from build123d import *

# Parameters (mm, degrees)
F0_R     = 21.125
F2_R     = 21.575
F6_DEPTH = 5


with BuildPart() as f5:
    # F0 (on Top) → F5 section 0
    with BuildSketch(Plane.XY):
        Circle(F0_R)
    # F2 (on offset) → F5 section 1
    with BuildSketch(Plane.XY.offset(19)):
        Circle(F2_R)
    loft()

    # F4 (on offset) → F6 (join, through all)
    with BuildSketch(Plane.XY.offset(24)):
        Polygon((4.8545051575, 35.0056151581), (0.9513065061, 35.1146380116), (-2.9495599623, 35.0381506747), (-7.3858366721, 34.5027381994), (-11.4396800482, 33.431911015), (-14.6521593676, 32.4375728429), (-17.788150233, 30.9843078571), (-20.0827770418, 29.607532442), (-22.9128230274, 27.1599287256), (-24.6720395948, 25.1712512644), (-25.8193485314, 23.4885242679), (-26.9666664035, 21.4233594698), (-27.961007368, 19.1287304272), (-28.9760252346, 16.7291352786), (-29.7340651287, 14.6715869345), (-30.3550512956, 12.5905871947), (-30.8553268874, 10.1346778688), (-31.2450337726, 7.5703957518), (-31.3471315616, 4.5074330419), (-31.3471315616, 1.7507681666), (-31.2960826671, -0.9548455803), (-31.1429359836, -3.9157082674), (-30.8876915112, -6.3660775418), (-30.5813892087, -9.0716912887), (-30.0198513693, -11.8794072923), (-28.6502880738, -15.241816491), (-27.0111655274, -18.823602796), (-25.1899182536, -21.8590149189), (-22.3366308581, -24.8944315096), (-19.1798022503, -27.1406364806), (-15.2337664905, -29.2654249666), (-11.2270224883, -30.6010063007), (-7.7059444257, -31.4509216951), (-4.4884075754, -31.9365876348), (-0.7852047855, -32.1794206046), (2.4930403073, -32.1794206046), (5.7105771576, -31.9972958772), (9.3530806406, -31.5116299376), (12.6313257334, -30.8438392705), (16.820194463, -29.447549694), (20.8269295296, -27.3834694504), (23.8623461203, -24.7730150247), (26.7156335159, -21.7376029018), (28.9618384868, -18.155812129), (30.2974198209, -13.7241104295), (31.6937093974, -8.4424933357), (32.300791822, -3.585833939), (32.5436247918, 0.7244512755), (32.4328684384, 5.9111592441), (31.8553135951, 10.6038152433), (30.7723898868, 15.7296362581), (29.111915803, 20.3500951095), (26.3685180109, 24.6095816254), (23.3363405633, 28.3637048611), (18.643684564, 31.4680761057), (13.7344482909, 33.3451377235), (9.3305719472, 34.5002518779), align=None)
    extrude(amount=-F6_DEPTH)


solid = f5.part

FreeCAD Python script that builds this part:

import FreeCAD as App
import Part
import Sketcher
from FreeCAD import Vector
Q = App.Units.Quantity

doc = App.newDocument("Part")
params = doc.addObject("Spreadsheet::Sheet", "Params")
for row, (alias, value) in enumerate([
    ("sketch1_diameter", "42.25 mm"),
    ("sketch2_diameter", "43.15 mm"),
    ("pad1_length", "5 mm"),
], start=1):
    params.set(f"A{row}", alias)
    params.set(f"B{row}", "=" + value)
    params.setAlias(f"B{row}", alias)

body = doc.addObject("PartDesign::Body", "Body")

# Sketch on XY plane
sketch1 = body.newObject("Sketcher::SketchObject", "Sketch")
sketch1.AttachmentSupport = (doc.getObject("XY_Plane"), [""])
sketch1.MapMode = "FlatFace"
sketch1.addGeometry(Part.Circle(Vector(0, 0, 0), Vector(0, 0, 1), 21), False)
sketch1.addConstraint(Sketcher.Constraint("Coincident", 0, 3, -1, 1))
sketch1.addConstraint(Sketcher.Constraint("Diameter", 0, Q("42.25 mm")))
sketch1.setExpression("Constraints[1]", "Params.sketch1_diameter")

# Sketch on XY plane
sketch2 = body.newObject("Sketcher::SketchObject", "Sketch001")
sketch2.AttachmentSupport = (doc.getObject("XY_Plane"), [""])
sketch2.MapMode = "FlatFace"
sketch2.AttachmentOffset = App.Placement(Vector(0, 0, 19), App.Rotation())
sketch2.addGeometry(Part.Circle(Vector(0, 0, 0), Vector(0, 0, 1), 22), False)
sketch2.addConstraint(Sketcher.Constraint("Coincident", 0, 3, -1, 1))
sketch2.addConstraint(Sketcher.Constraint("Diameter", 0, Q("43.15 mm")))
sketch2.setExpression("Constraints[1]", "Params.sketch2_diameter")

additiveloft = body.newObject("PartDesign::AdditiveLoft", "AdditiveLoft")
additiveloft.Profile = sketch1
additiveloft.Sections = [sketch2]

# Sketch on XY plane
sketch3 = body.newObject("Sketcher::SketchObject", "Sketch002")
sketch3.AttachmentSupport = (doc.getObject("XY_Plane"), [""])
sketch3.MapMode = "FlatFace"
sketch3.AttachmentOffset = App.Placement(Vector(0, 0, 24), App.Rotation())
sketch3.addGeometry(Part.LineSegment(Vector(4.9, 35, 0), Vector(1, 35.1, 0)), False)
sketch3.addGeometry(Part.LineSegment(Vector(1, 35.1, 0), Vector(-2.9, 35, 0)), False)
sketch3.addGeometry(Part.LineSegment(Vector(-2.9, 35, 0), Vector(-7.4, 34.5, 0)), False)
sketch3.addGeometry(Part.LineSegment(Vector(-7.4, 34.5, 0), Vector(-11.4, 33.4, 0)), False)
sketch3.addGeometry(Part.LineSegment(Vector(-11.4, 33.4, 0), Vector(-14.7, 32.4, 0)), False)
sketch3.addGeometry(Part.LineSegment(Vector(-14.7, 32.4, 0), Vector(-17.8, 31, 0)), False)
sketch3.addGeometry(Part.LineSegment(Vector(-17.8, 31, 0), Vector(-20.1, 29.6, 0)), False)
sketch3.addGeometry(Part.LineSegment(Vector(-20.1, 29.6, 0), Vector(-22.9, 27.2, 0)), False)
sketch3.addGeometry(Part.LineSegment(Vector(-22.9, 27.2, 0), Vector(-24.7, 25.2, 0)), False)
sketch3.addGeometry(Part.LineSegment(Vector(-24.7, 25.2, 0), Vector(-25.8, 23.5, 0)), False)
sketch3.addGeometry(Part.LineSegment(Vector(-25.8, 23.5, 0), Vector(-27, 21.4, 0)), False)
sketch3.addGeometry(Part.LineSegment(Vector(-27, 21.4, 0), Vector(-28, 19.1, 0)), False)
sketch3.addGeometry(Part.LineSegment(Vector(-28, 19.1, 0), Vector(-29, 16.7, 0)), False)
sketch3.addGeometry(Part.LineSegment(Vector(-29, 16.7, 0), Vector(-29.7, 14.7, 0)), False)
sketch3.addGeometry(Part.LineSegment(Vector(-29.7, 14.7, 0), Vector(-30.4, 12.6, 0)), False)
sketch3.addGeometry(Part.LineSegment(Vector(-30.4, 12.6, 0), Vector(-30.9, 10.1, 0)), False)
sketch3.addGeometry(Part.LineSegment(Vector(-30.9, 10.1, 0), Vector(-31.2, 7.6, 0)), False)
sketch3.addGeometry(Part.LineSegment(Vector(-31.2, 7.6, 0), Vector(-31.3, 4.5, 0)), False)
sketch3.addGeometry(Part.LineSegment(Vector(-31.3, 4.5, 0), Vector(-31.3, 1.8, 0)), False)
sketch3.addGeometry(Part.LineSegment(Vector(-31.3, 1.8, 0), Vector(-31.3, -1, 0)), False)
sketch3.addGeometry(Part.LineSegment(Vector(-31.3, -1, 0), Vector(-31.1, -3.9, 0)), False)
sketch3.addGeometry(Part.LineSegment(Vector(-31.1, -3.9, 0), Vector(-30.9, -6.4, 0)), False)
sketch3.addGeometry(Part.LineSegment(Vector(-30.9, -6.4, 0), Vector(-30.6, -9.1, 0)), False)
sketch3.addGeometry(Part.LineSegment(Vector(-30.6, -9.1, 0), Vector(-30, -11.9, 0)), False)
sketch3.addGeometry(Part.LineSegment(Vector(-30, -11.9, 0), Vector(-28.7, -15.2, 0)), False)
sketch3.addGeometry(Part.LineSegment(Vector(-28.7, -15.2, 0), Vector(-27, -18.8, 0)), False)
sketch3.addGeometry(Part.LineSegment(Vector(-27, -18.8, 0), Vector(-25.2, -21.9, 0)), False)
sketch3.addGeometry(Part.LineSegment(Vector(-25.2, -21.9, 0), Vector(-22.3, -24.9, 0)), False)
sketch3.addGeometry(Part.LineSegment(Vector(-22.3, -24.9, 0), Vector(-19.2, -27.1, 0)), False)
sketch3.addGeometry(Part.LineSegment(Vector(-19.2, -27.1, 0), Vector(-15.2, -29.3, 0)), False)
sketch3.addGeometry(Part.LineSegment(Vector(-15.2, -29.3, 0), Vector(-11.2, -30.6, 0)), False)
sketch3.addGeometry(Part.LineSegment(Vector(-11.2, -30.6, 0), Vector(-7.7, -31.5, 0)), False)
sketch3.addGeometry(Part.LineSegment(Vector(-7.7, -31.5, 0), Vector(-4.5, -31.9, 0)), False)
sketch3.addGeometry(Part.LineSegment(Vector(-4.5, -31.9, 0), Vector(-0.8, -32.2, 0)), False)
sketch3.addGeometry(Part.LineSegment(Vector(-0.8, -32.2, 0), Vector(2.5, -32.2, 0)), False)
sketch3.addGeometry(Part.LineSegment(Vector(2.5, -32.2, 0), Vector(5.7, -32, 0)), False)
sketch3.addGeometry(Part.LineSegment(Vector(5.7, -32, 0), Vector(9.4, -31.5, 0)), False)
sketch3.addGeometry(Part.LineSegment(Vector(9.4, -31.5, 0), Vector(12.6, -30.8, 0)), False)
sketch3.addGeometry(Part.LineSegment(Vector(12.6, -30.8, 0), Vector(16.8, -29.4, 0)), False)
sketch3.addGeometry(Part.LineSegment(Vector(16.8, -29.4, 0), Vector(20.8, -27.4, 0)), False)
sketch3.addGeometry(Part.LineSegment(Vector(20.8, -27.4, 0), Vector(23.9, -24.8, 0)), False)
sketch3.addGeometry(Part.LineSegment(Vector(23.9, -24.8, 0), Vector(26.7, -21.7, 0)), False)
sketch3.addGeometry(Part.LineSegment(Vector(26.7, -21.7, 0), Vector(29, -18.2, 0)), False)
sketch3.addGeometry(Part.LineSegment(Vector(29, -18.2, 0), Vector(30.3, -13.7, 0)), False)
sketch3.addGeometry(Part.LineSegment(Vector(30.3, -13.7, 0), Vector(31.7, -8.4, 0)), False)
sketch3.addGeometry(Part.LineSegment(Vector(31.7, -8.4, 0), Vector(32.3, -3.6, 0)), False)
sketch3.addGeometry(Part.LineSegment(Vector(32.3, -3.6, 0), Vector(32.5, 0.7, 0)), False)
sketch3.addGeometry(Part.LineSegment(Vector(32.5, 0.7, 0), Vector(32.4, 5.9, 0)), False)
sketch3.addGeometry(Part.LineSegment(Vector(32.4, 5.9, 0), Vector(31.9, 10.6, 0)), False)
sketch3.addGeometry(Part.LineSegment(Vector(31.9, 10.6, 0), Vector(30.8, 15.7, 0)), False)
sketch3.addGeometry(Part.LineSegment(Vector(30.8, 15.7, 0), Vector(29.1, 20.4, 0)), False)
sketch3.addGeometry(Part.LineSegment(Vector(29.1, 20.4, 0), Vector(26.4, 24.6, 0)), False)
sketch3.addGeometry(Part.LineSegment(Vector(26.4, 24.6, 0), Vector(23.3, 28.4, 0)), False)
sketch3.addGeometry(Part.LineSegment(Vector(23.3, 28.4, 0), Vector(18.6, 31.5, 0)), False)
sketch3.addGeometry(Part.LineSegment(Vector(18.6, 31.5, 0), Vector(13.7, 33.3, 0)), False)
sketch3.addGeometry(Part.LineSegment(Vector(13.7, 33.3, 0), Vector(9.3, 34.5, 0)), False)
sketch3.addGeometry(Part.LineSegment(Vector(9.3, 34.5, 0), Vector(4.9, 35, 0)), False)
sketch3.addConstraint(Sketcher.Constraint("Coincident", 0, 2, 1, 1))
sketch3.addConstraint(Sketcher.Constraint("Coincident", 1, 2, 2, 1))
sketch3.addConstraint(Sketcher.Constraint("Coincident", 2, 2, 3, 1))
sketch3.addConstraint(Sketcher.Constraint("Coincident", 3, 2, 4, 1))
sketch3.addConstraint(Sketcher.Constraint("Coincident", 4, 2, 5, 1))
sketch3.addConstraint(Sketcher.Constraint("Coincident", 5, 2, 6, 1))
sketch3.addConstraint(Sketcher.Constraint("Coincident", 6, 2, 7, 1))
sketch3.addConstraint(Sketcher.Constraint("Coincident", 7, 2, 8, 1))
sketch3.addConstraint(Sketcher.Constraint("Coincident", 8, 2, 9, 1))
sketch3.addConstraint(Sketcher.Constraint("Coincident", 9, 2, 10, 1))
sketch3.addConstraint(Sketcher.Constraint("Coincident", 10, 2, 11, 1))
sketch3.addConstraint(Sketcher.Constraint("Coincident", 11, 2, 12, 1))
sketch3.addConstraint(Sketcher.Constraint("Coincident", 12, 2, 13, 1))
sketch3.addConstraint(Sketcher.Constraint("Coincident", 13, 2, 14, 1))
sketch3.addConstraint(Sketcher.Constraint("Coincident", 14, 2, 15, 1))
sketch3.addConstraint(Sketcher.Constraint("Coincident", 15, 2, 16, 1))
sketch3.addConstraint(Sketcher.Constraint("Coincident", 16, 2, 17, 1))
sketch3.addConstraint(Sketcher.Constraint("Coincident", 17, 2, 18, 1))
sketch3.addConstraint(Sketcher.Constraint("Coincident", 18, 2, 19, 1))
sketch3.addConstraint(Sketcher.Constraint("Coincident", 19, 2, 20, 1))
sketch3.addConstraint(Sketcher.Constraint("Coincident", 20, 2, 21, 1))
sketch3.addConstraint(Sketcher.Constraint("Coincident", 21, 2, 22, 1))
sketch3.addConstraint(Sketcher.Constraint("Coincident", 22, 2, 23, 1))
sketch3.addConstraint(Sketcher.Constraint("Coincident", 23, 2, 24, 1))
sketch3.addConstraint(Sketcher.Constraint("Coincident", 24, 2, 25, 1))
sketch3.addConstraint(Sketcher.Constraint("Coincident", 25, 2, 26, 1))
sketch3.addConstraint(Sketcher.Constraint("Coincident", 26, 2, 27, 1))
sketch3.addConstraint(Sketcher.Constraint("Coincident", 27, 2, 28, 1))
sketch3.addConstraint(Sketcher.Constraint("Coincident", 28, 2, 29, 1))
sketch3.addConstraint(Sketcher.Constraint("Coincident", 29, 2, 30, 1))
sketch3.addConstraint(Sketcher.Constraint("Coincident", 30, 2, 31, 1))
sketch3.addConstraint(Sketcher.Constraint("Coincident", 31, 2, 32, 1))
sketch3.addConstraint(Sketcher.Constraint("Coincident", 32, 2, 33, 1))
sketch3.addConstraint(Sketcher.Constraint("Coincident", 33, 2, 34, 1))
sketch3.addConstraint(Sketcher.Constraint("Coincident", 34, 2, 35, 1))
sketch3.addConstraint(Sketcher.Constraint("Coincident", 35, 2, 36, 1))
sketch3.addConstraint(Sketcher.Constraint("Coincident", 36, 2, 37, 1))
sketch3.addConstraint(Sketcher.Constraint("Coincident", 37, 2, 38, 1))
sketch3.addConstraint(Sketcher.Constraint("Coincident", 38, 2, 39, 1))
sketch3.addConstraint(Sketcher.Constraint("Coincident", 39, 2, 40, 1))
sketch3.addConstraint(Sketcher.Constraint("Coincident", 40, 2, 41, 1))
sketch3.addConstraint(Sketcher.Constraint("Coincident", 41, 2, 42, 1))
sketch3.addConstraint(Sketcher.Constraint("Coincident", 42, 2, 43, 1))
sketch3.addConstraint(Sketcher.Constraint("Coincident", 43, 2, 44, 1))
sketch3.addConstraint(Sketcher.Constraint("Coincident", 44, 2, 45, 1))
sketch3.addConstraint(Sketcher.Constraint("Coincident", 45, 2, 46, 1))
sketch3.addConstraint(Sketcher.Constraint("Coincident", 46, 2, 47, 1))
sketch3.addConstraint(Sketcher.Constraint("Coincident", 47, 2, 48, 1))
sketch3.addConstraint(Sketcher.Constraint("Coincident", 48, 2, 49, 1))
sketch3.addConstraint(Sketcher.Constraint("Coincident", 49, 2, 50, 1))
sketch3.addConstraint(Sketcher.Constraint("Coincident", 50, 2, 51, 1))
sketch3.addConstraint(Sketcher.Constraint("Coincident", 51, 2, 52, 1))
sketch3.addConstraint(Sketcher.Constraint("Coincident", 52, 2, 53, 1))
sketch3.addConstraint(Sketcher.Constraint("Coincident", 53, 2, 54, 1))
sketch3.addConstraint(Sketcher.Constraint("Coincident", 54, 2, 55, 1))
sketch3.addConstraint(Sketcher.Constraint("Coincident", 55, 2, 56, 1))
sketch3.addConstraint(Sketcher.Constraint("Coincident", 56, 2, 0, 1))
sketch3.addConstraint(Sketcher.Constraint("Vertical", 18))
sketch3.addConstraint(Sketcher.Constraint("Horizontal", 34))
sketch3.addConstraint(Sketcher.Constraint("Perpendicular", 6, 26))
sketch3.addConstraint(Sketcher.Constraint("DistanceY", 14, 2, 13, 2, Q("2.081 mm")))
sketch3.addConstraint(Sketcher.Constraint("Distance", 31, Q("3.622202 mm")))
sketch3.addConstraint(Sketcher.Constraint("DistanceY", 2, 2, 0, 2, Q("0.6119 mm")))
sketch3.addConstraint(Sketcher.Constraint("DistanceX", 4, 2, 1, 2, Q("11.702599 mm")))
sketch3.addConstraint(Sketcher.Constraint("DistanceX", 9, 2, 5, 2, Q("8.031198 mm")))
sketch3.addConstraint(Sketcher.Constraint("DistanceY", 11, 2, 7, 2, Q("8.031198 mm")))
sketch3.addConstraint(Sketcher.Constraint("DistanceX", 13, 2, 10, 2, Q("2.767399 mm")))
sketch3.addConstraint(Sketcher.Constraint("DistanceX", 15, 2, 12, 2, Q("1.879302 mm")))
sketch3.addConstraint(Sketcher.Constraint("DistanceY", 23, 2, 20, 2, Q("7.963699 mm")))
sketch3.addConstraint(Sketcher.Constraint("DistanceX", 22, 2, 24, 2, Q("1.931101 mm")))
sketch3.addConstraint(Sketcher.Constraint("DistanceY", 26, 2, 24, 2, Q("6.617198 mm")))
sketch3.addConstraint(Sketcher.Constraint("DistanceX", 25, 2, 29, 2, Q("11.777399 mm")))
sketch3.addConstraint(Sketcher.Constraint("DistanceY", 33, 2, 31, 2, Q("0.728499 mm")))
sketch3.addConstraint(Sketcher.Constraint("DistanceX", 30, 2, 35, 2, Q("16.9376 mm")))
sketch3.addConstraint(Sketcher.Constraint("DistanceX", 33, 2, 38, 2, Q("17.605399 mm")))
sketch3.addConstraint(Sketcher.Constraint("DistanceY", 42, 2, 43, 2, Q("4.431702 mm")))
sketch3.addConstraint(Sketcher.Constraint("DistanceX", 49, 2, 45, 2, Q("1.528402 mm")))
sketch3.addConstraint(Sketcher.Constraint("DistanceY", 54, 2, 0, 2, Q("1.7695 mm")))
sketch3.addConstraint(Sketcher.Constraint("DistanceY", 55, 2, 1, 2, Q("0.537899 mm")))
sketch3.addConstraint(Sketcher.Constraint("DistanceX", 0, 2, 56, 2, Q("3.903199 mm")))
sketch3.addConstraint(Sketcher.Constraint("Distance", 0, Q("3.904721 mm")))
sketch3.addConstraint(Sketcher.Constraint("Distance", 2, Q("4.468469 mm")))
sketch3.addConstraint(Sketcher.Constraint("Distance", 3, Q("4.192889 mm")))
sketch3.addConstraint(Sketcher.Constraint("Distance", 5, Q("3.456359 mm")))
sketch3.addConstraint(Sketcher.Constraint("Distance", 6, Q("2.675971 mm")))
sketch3.addConstraint(Sketcher.Constraint("Distance", 12, Q("2.60544 mm")))
sketch3.addConstraint(Sketcher.Constraint("Distance", 20, Q("2.964821 mm")))
sketch3.addConstraint(Sketcher.Constraint("Distance", 23, Q("2.863319 mm")))
sketch3.addConstraint(Sketcher.Constraint("Distance", 26, Q("3.539868 mm")))
sketch3.addConstraint(Sketcher.Constraint("Distance", 30, Q("4.223479 mm")))
sketch3.addConstraint(Sketcher.Constraint("Distance", 36, Q("3.674738 mm")))
sketch3.addConstraint(Sketcher.Constraint("Distance", 37, Q("3.345569 mm")))
sketch3.addConstraint(Sketcher.Constraint("Distance", 41, Q("4.16593 mm")))
sketch3.addConstraint(Sketcher.Constraint("Distance", 43, Q("4.628581 mm")))
sketch3.addConstraint(Sketcher.Constraint("Distance", 46, Q("4.31712 mm")))
sketch3.addConstraint(Sketcher.Constraint("Distance", 47, Q("5.18789 mm")))
sketch3.addConstraint(Sketcher.Constraint("Distance", 54, Q("5.25585 mm")))
sketch3.addConstraint(Sketcher.Constraint("DistanceX", 34, 1, 34, 2, Q("3.278245 mm")))
sketch3.addConstraint(Sketcher.Constraint("DistanceY", 18, 2, 18, 1, Q("2.756665 mm")))
sketch3.addConstraint(Sketcher.Constraint("DistanceY", -1, 1, 0, 2, Q("35.114638 mm")))
sketch3.addConstraint(Sketcher.Constraint("DistanceX", 1, 2, -1, 1, Q("2.94956 mm")))
sketch3.addConstraint(Sketcher.Constraint("DistanceY", -1, 1, 1, 2, Q("35.038151 mm")))
sketch3.addConstraint(Sketcher.Constraint("DistanceX", 3, 2, -1, 1, Q("11.43968 mm")))
sketch3.addConstraint(Sketcher.Constraint("DistanceX", 5, 2, -1, 1, Q("17.78815 mm")))
sketch3.addConstraint(Sketcher.Constraint("DistanceY", -1, 1, 7, 2, Q("27.159929 mm")))
sketch3.addConstraint(Sketcher.Constraint("DistanceX", 8, 2, -1, 1, Q("24.67204 mm")))
sketch3.addConstraint(Sketcher.Constraint("DistanceY", -1, 1, 8, 2, Q("25.171251 mm")))
sketch3.addConstraint(Sketcher.Constraint("DistanceY", -1, 1, 10, 2, Q("21.423359 mm")))
sketch3.addConstraint(Sketcher.Constraint("DistanceX", 14, 2, -1, 1, Q("30.355051 mm")))
sketch3.addConstraint(Sketcher.Constraint("DistanceX", 17, 2, -1, 1, Q("31.347132 mm")))
sketch3.addConstraint(Sketcher.Constraint("DistanceY", -1, 1, 18, 2, Q("1.750768 mm")))
sketch3.addConstraint(Sketcher.Constraint("DistanceY", 20, 2, -1, 1, Q("3.915708 mm")))
sketch3.addConstraint(Sketcher.Constraint("DistanceX", 21, 2, -1, 1, Q("30.887692 mm")))
sketch3.addConstraint(Sketcher.Constraint("DistanceX", 22, 2, -1, 1, Q("30.581389 mm")))
sketch3.addConstraint(Sketcher.Constraint("DistanceY", 22, 2, -1, 1, Q("9.071691 mm")))
sketch3.addConstraint(Sketcher.Constraint("DistanceX", 26, 2, -1, 1, Q("25.189918 mm")))
sketch3.addConstraint(Sketcher.Constraint("DistanceX", 27, 2, -1, 1, Q("22.336631 mm")))
sketch3.addConstraint(Sketcher.Constraint("DistanceY", 27, 2, -1, 1, Q("24.894432 mm")))
sketch3.addConstraint(Sketcher.Constraint("DistanceY", 31, 2, -1, 1, Q("31.450922 mm")))
sketch3.addConstraint(Sketcher.Constraint("DistanceX", -1, 1, 34, 2, Q("2.49304 mm")))
sketch3.addConstraint(Sketcher.Constraint("DistanceX", -1, 1, 36, 2, Q("9.353081 mm")))
sketch3.addConstraint(Sketcher.Constraint("DistanceY", 36, 2, -1, 1, Q("31.51163 mm")))
sketch3.addConstraint(Sketcher.Constraint("DistanceY", 37, 2, -1, 1, Q("30.843839 mm")))
sketch3.addConstraint(Sketcher.Constraint("DistanceY", 38, 2, -1, 1, Q("29.44755 mm")))
sketch3.addConstraint(Sketcher.Constraint("DistanceX", -1, 1, 39, 2, Q("20.82693 mm")))
sketch3.addConstraint(Sketcher.Constraint("DistanceY", 39, 2, -1, 1, Q("27.383469 mm")))
sketch3.addConstraint(Sketcher.Constraint("DistanceX", -1, 1, 42, 2, Q("28.961838 mm")))
sketch3.addConstraint(Sketcher.Constraint("DistanceY", 43, 2, -1, 1, Q("13.72411 mm")))
sketch3.addConstraint(Sketcher.Constraint("DistanceX", -1, 1, 44, 2, Q("31.693709 mm")))
sketch3.addConstraint(Sketcher.Constraint("DistanceX", -1, 1, 45, 2, Q("32.300792 mm")))
sketch3.addConstraint(Sketcher.Constraint("DistanceY", -1, 1, 46, 2, Q("0.724451 mm")))
sketch3.addConstraint(Sketcher.Constraint("DistanceX", -1, 1, 47, 2, Q("32.432868 mm")))
sketch3.addConstraint(Sketcher.Constraint("DistanceY", -1, 1, 47, 2, Q("5.911159 mm")))
sketch3.addConstraint(Sketcher.Constraint("DistanceX", -1, 1, 51, 2, Q("26.368518 mm")))
sketch3.addConstraint(Sketcher.Constraint("DistanceY", -1, 1, 51, 2, Q("24.609582 mm")))
sketch3.addConstraint(Sketcher.Constraint("DistanceX", -1, 1, 52, 2, Q("23.336341 mm")))
sketch3.addConstraint(Sketcher.Constraint("DistanceX", -1, 1, 54, 2, Q("13.734448 mm")))
sketch3.addConstraint(Sketcher.Constraint("DistanceX", -1, 1, 55, 2, Q("9.330572 mm")))
sketch3.addConstraint(Sketcher.Constraint("DistanceY", 4, 2, 3, 2, Q("0.994338 mm")))
sketch3.addConstraint(Sketcher.Constraint("DistanceY", 6, 2, 4, 2, Q("2.83004 mm")))
sketch3.addConstraint(Sketcher.Constraint("DistanceY", 9, 2, 6, 2, Q("6.119008 mm")))
sketch3.addConstraint(Sketcher.Constraint("DistanceX", 10, 2, 6, 2, Q("6.883889 mm")))
sketch3.addConstraint(Sketcher.Constraint("DistanceX", 11, 2, 10, 2, Q("0.994341 mm")))
sketch3.addConstraint(Sketcher.Constraint("DistanceX", 12, 2, 10, 2, Q("2.009359 mm")))
sketch3.addConstraint(Sketcher.Constraint("DistanceY", 13, 2, 12, 2, Q("2.057548 mm")))
sketch3.addConstraint(Sketcher.Constraint("DistanceY", 15, 2, 14, 2, Q("2.455909 mm")))
sketch3.addConstraint(Sketcher.Constraint("DistanceY", 16, 2, 14, 2, Q("5.020191 mm")))
sketch3.addConstraint(Sketcher.Constraint("DistanceX", 16, 2, 13, 2, Q("1.510969 mm")))
sketch3.addConstraint(Sketcher.Constraint("DistanceX", 18, 2, 19, 2, Q("0.051049 mm")))
sketch3.addConstraint(Sketcher.Constraint("DistanceY", 19, 2, 17, 2, Q("5.462279 mm")))
sketch3.addConstraint(Sketcher.Constraint("DistanceY", 21, 2, 20, 2, Q("2.450369 mm")))
sketch3.addConstraint(Sketcher.Constraint("DistanceY", 24, 2, 23, 2, Q("3.362409 mm")))
sketch3.addConstraint(Sketcher.Constraint("DistanceX", 27, 2, 28, 2, Q("3.156829 mm")))
sketch3.addConstraint(Sketcher.Constraint("DistanceY", 28, 2, 26, 2, Q("5.281622 mm")))
sketch3.addConstraint(Sketcher.Constraint("DistanceY", 29, 2, 28, 2, Q("2.124788 mm")))
sketch3.addConstraint(Sketcher.Constraint("DistanceY", 30, 2, 29, 2, Q("1.335581 mm")))
sketch3.addConstraint(Sketcher.Constraint("DistanceY", 32, 2, 30, 2, Q("1.335581 mm")))
sketch3.addConstraint(Sketcher.Constraint("DistanceX", 29, 2, 32, 2, Q("10.745359 mm")))
sketch3.addConstraint(Sketcher.Constraint("DistanceX", 38, 2, 40, 2, Q("7.042152 mm")))
sketch3.addConstraint(Sketcher.Constraint("DistanceY", 35, 2, 40, 2, Q("7.224281 mm")))
sketch3.addConstraint(Sketcher.Constraint("DistanceX", 38, 2, 41, 2, Q("9.895439 mm")))
sketch3.addConstraint(Sketcher.Constraint("DistanceY", 42, 2, 44, 2, Q("9.713319 mm")))
sketch3.addConstraint(Sketcher.Constraint("DistanceX", 48, 2, 46, 2, Q("0.688311 mm")))
sketch3.addConstraint(Sketcher.Constraint("DistanceY", 45, 2, 48, 2, Q("14.189649 mm")))
sketch3.addConstraint(Sketcher.Constraint("DistanceY", 48, 2, 49, 2, Q("5.125821 mm")))
sketch3.addConstraint(Sketcher.Constraint("DistanceY", 49, 2, 50, 2, Q("4.620459 mm")))
sketch3.addConstraint(Sketcher.Constraint("DistanceX", 50, 2, 46, 2, Q("3.431709 mm")))
sketch3.addConstraint(Sketcher.Constraint("DistanceY", 50, 2, 52, 2, Q("8.01361 mm")))
sketch3.addConstraint(Sketcher.Constraint("DistanceY", 52, 2, 53, 2, Q("3.104371 mm")))
sketch3.addConstraint(Sketcher.Constraint("DistanceX", 0, 2, 53, 2, Q("17.692378 mm")))
sketch3.addConstraint(Sketcher.Constraint("Distance", 7, Q("3.741647 mm")))
pad1 = body.newObject("PartDesign::Pad", "Pad")
pad1.Profile = sketch3
pad1.setExpression("Length", "Params.pad1_length")
pad1.Reversed = True

doc.recompute()
